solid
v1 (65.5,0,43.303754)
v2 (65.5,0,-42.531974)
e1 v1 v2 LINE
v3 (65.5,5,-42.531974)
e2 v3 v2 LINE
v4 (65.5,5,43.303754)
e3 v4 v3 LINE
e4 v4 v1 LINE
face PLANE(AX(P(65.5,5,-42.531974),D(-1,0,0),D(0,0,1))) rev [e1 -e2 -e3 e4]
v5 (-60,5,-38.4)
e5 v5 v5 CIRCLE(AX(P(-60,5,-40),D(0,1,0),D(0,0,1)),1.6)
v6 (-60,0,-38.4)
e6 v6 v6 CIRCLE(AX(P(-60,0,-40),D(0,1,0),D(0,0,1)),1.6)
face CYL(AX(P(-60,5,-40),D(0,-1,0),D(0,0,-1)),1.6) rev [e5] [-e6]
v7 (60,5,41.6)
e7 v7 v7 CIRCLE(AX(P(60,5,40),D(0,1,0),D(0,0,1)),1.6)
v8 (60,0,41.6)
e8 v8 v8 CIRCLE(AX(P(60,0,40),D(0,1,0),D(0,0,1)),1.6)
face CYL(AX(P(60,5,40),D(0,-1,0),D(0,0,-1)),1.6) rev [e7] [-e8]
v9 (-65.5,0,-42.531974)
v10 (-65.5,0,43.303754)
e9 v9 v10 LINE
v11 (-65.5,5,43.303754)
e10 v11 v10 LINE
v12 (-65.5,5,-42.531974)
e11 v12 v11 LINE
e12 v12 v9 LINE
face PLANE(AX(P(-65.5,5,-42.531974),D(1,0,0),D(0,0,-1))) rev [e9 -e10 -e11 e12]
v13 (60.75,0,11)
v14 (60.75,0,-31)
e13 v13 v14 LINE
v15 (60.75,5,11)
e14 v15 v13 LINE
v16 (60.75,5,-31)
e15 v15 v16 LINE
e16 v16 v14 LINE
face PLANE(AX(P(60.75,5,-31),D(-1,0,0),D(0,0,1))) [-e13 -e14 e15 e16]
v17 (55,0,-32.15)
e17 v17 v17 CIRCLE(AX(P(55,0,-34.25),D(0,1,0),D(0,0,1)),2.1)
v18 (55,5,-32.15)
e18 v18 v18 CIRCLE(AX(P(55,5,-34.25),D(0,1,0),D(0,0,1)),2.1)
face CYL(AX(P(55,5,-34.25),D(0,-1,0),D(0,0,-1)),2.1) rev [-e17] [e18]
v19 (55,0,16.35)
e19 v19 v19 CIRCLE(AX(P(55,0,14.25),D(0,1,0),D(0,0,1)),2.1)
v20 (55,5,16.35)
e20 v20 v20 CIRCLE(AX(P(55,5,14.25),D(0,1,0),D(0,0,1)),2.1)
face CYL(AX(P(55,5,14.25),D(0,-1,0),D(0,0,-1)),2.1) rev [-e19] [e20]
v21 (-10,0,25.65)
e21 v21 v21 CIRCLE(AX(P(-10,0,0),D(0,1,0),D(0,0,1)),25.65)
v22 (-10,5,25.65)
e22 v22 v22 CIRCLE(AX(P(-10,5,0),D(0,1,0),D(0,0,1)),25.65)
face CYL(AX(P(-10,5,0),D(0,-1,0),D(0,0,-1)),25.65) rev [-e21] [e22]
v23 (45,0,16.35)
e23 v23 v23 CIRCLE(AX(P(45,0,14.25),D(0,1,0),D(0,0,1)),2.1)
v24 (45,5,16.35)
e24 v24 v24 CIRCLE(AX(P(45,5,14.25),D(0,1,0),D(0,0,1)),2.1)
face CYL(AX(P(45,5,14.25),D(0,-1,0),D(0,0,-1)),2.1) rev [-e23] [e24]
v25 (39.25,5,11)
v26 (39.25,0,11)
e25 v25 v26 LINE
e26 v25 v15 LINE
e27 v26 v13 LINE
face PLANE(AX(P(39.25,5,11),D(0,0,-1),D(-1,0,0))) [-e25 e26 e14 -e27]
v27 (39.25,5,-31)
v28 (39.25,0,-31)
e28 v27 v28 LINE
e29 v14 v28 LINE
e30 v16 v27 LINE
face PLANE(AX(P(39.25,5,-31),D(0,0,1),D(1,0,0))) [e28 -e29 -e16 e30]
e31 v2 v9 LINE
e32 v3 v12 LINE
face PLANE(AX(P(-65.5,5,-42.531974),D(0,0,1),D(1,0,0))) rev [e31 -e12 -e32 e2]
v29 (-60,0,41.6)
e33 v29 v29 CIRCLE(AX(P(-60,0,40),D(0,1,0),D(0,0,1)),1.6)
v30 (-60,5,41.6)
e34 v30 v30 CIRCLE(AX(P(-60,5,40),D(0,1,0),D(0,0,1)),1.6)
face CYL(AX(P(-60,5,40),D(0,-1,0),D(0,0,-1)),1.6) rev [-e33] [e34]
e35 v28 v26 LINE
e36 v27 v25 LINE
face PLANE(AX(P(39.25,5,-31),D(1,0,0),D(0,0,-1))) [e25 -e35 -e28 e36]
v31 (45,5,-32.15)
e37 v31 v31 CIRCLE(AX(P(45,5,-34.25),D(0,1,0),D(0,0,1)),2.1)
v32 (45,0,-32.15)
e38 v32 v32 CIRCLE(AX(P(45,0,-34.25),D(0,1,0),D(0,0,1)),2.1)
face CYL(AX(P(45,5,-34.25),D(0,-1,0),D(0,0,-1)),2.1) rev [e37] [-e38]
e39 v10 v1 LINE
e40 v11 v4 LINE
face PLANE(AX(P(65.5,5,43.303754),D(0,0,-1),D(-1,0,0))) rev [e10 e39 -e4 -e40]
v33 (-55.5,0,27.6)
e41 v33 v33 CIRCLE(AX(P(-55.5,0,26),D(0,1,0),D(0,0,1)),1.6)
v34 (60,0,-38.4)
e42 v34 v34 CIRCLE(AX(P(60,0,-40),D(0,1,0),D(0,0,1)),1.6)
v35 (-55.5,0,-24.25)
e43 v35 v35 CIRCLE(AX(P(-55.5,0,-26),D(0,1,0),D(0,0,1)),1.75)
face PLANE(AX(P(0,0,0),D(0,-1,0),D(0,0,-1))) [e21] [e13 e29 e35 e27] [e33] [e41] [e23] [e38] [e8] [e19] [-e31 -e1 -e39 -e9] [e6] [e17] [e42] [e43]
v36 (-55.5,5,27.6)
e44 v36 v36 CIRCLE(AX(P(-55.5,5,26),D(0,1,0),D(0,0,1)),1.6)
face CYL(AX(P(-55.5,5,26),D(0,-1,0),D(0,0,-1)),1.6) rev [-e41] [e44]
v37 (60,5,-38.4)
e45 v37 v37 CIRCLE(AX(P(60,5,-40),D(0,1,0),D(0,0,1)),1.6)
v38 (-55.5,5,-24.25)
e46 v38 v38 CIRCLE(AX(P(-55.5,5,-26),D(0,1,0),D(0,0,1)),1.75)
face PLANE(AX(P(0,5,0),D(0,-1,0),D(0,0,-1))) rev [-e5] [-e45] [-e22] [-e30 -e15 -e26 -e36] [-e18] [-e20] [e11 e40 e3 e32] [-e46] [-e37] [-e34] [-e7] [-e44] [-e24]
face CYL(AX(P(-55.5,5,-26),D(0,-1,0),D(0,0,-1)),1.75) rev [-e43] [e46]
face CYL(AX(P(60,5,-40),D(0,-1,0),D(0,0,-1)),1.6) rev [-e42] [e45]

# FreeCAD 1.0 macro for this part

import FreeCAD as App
import Part
import Sketcher


def add_polygon(sketch, points):
    """Adds a closed chain of lines whose ends are joined by coincident constraints."""
    first, n = sketch.GeometryCount, len(points)
    for a, b in zip(points, points[1:] + points[:1]):
        sketch.addGeometry(Part.LineSegment(App.Vector(*a, 0), App.Vector(*b, 0)), False)
    for i in range(n):
        sketch.addConstraint(Sketcher.Constraint("Coincident", first + i, 2, first + (i + 1) % n, 1))

doc = App.newDocument("Part")
body = doc.addObject("PartDesign::Body", "Body")

# Sketch on XZ plane
sketch1 = doc.addObject("Sketcher::SketchObject", "Sketch")
body.addObject(sketch1)
sketch1.AttachmentSupport = (doc.XZ_Plane, [""])
sketch1.MapMode = "FlatFace"
add_polygon(sketch1, [(-65.5, -42.5), (-65.5, 43.3), (65.5, 43.3), (65.5, -42.5)])  # lines 0-3
sketch1.addGeometry(Part.Circle(App.Vector(-60, 40, 0), App.Vector(0, 0, 1), 1.6), False)  # 4
sketch1.addGeometry(Part.Circle(App.Vector(-55.5, 26, 0), App.Vector(0, 0, 1), 1.6), False)  # 5
sketch1.addGeometry(Part.Circle(App.Vector(60, 40, 0), App.Vector(0, 0, 1), 1.6), False)  # 6
sketch1.addGeometry(Part.Circle(App.Vector(45, 14.2, 0), App.Vector(0, 0, 1), 2.1), False)  # 7
sketch1.addGeometry(Part.Circle(App.Vector(55, 14.2, 0), App.Vector(0, 0, 1), 2.1), False)  # 8
sketch1.addGeometry(Part.Circle(App.Vector(-10, 0, 0), App.Vector(0, 0, 1), 25.6), False)  # 9
sketch1.addGeometry(Part.Circle(App.Vector(-55.5, -26, 0), App.Vector(0, 0, 1), 1.8), False)  # 10
sketch1.addGeometry(Part.Circle(App.Vector(-60, -40, 0), App.Vector(0, 0, 1), 1.6), False)  # 11
add_polygon(sketch1, [(60.8, 11), (39.2, 11), (39.2, -31), (60.8, -31)])  # lines 12-15
sketch1.addGeometry(Part.Circle(App.Vector(45, -34.2, 0), App.Vector(0, 0, 1), 2.1), False)  # 16
sketch1.addGeometry(Part.Circle(App.Vector(55, -34.2, 0), App.Vector(0, 0, 1), 2.1), False)  # 17
sketch1.addGeometry(Part.Circle(App.Vector(60, -40, 0), App.Vector(0, 0, 1), 1.6), False)  # 18
sketch1.addConstraint(Sketcher.Constraint("Vertical", 0))
sketch1.addConstraint(Sketcher.Constraint("Horizontal", 1))
sketch1.addConstraint(Sketcher.Constraint("Vertical", 2))
sketch1.addConstraint(Sketcher.Constraint("Horizontal", 3))
sketch1.addConstraint(Sketcher.Constraint("Horizontal", 12))
sketch1.addConstraint(Sketcher.Constraint("Vertical", 13))
sketch1.addConstraint(Sketcher.Constraint("Horizontal", 14))
sketch1.addConstraint(Sketcher.Constraint("Vertical", 15))
sketch1.addConstraint(Sketcher.Constraint("Equal", 4, 5))
sketch1.addConstraint(Sketcher.Constraint("Equal", 5, 6))
sketch1.addConstraint(Sketcher.Constraint("Equal", 7, 8))
sketch1.addConstraint(Sketcher.Constraint("Equal", 6, 11))
sketch1.addConstraint(Sketcher.Constraint("Equal", 8, 16))
sketch1.addConstraint(Sketcher.Constraint("Equal", 16, 17))
sketch1.addConstraint(Sketcher.Constraint("Equal", 11, 18))
sketch1.addConstraint(Sketcher.Constraint("Symmetric", 6, 3, 11, 3, -1, 1))
sketch1.addConstraint(Sketcher.Constraint("Symmetric", 4, 3, 18, 3, -1, 1))
sketch1.addConstraint(Sketcher.Constraint("Symmetric", 4, 3, 6, 3, -2))
sketch1.addConstraint(Sketcher.Constraint("Symmetric", 5, 3, 10, 3, -1))
sketch1.addConstraint(Sketcher.Constraint("PointOnObject", 9, 3, -1))
sketch1.addConstraint(Sketcher.Constraint("Horizontal", 7, 3, 8, 3))
sketch1.addConstraint(Sketcher.Constraint("Horizontal", 16, 3, 17, 3))
sketch1.addConstraint(Sketcher.Constraint("Vertical", 7, 3, 16, 3))
sketch1.addConstraint(Sketcher.Constraint("Vertical", 8, 3, 17, 3))
sketch1.addConstraint(Sketcher.Constraint("Diameter", 4, 3.2))
sketch1.addConstraint(Sketcher.Constraint("Diameter", 7, 4.2))
sketch1.addConstraint(Sketcher.Constraint("Diameter", 9, 51.3))
sketch1.addConstraint(Sketcher.Constraint("Diameter", 10, 3.5))
sketch1.addConstraint(Sketcher.Constraint("DistanceX", 1, 1, 1, 2, 131.0))
sketch1.addConstraint(Sketcher.Constraint("DistanceY", 13, 2, 13, 1, 42.0))
sketch1.addConstraint(Sketcher.Constraint("DistanceX", 12, 2, 12, 1, 21.5))
sketch1.addConstraint(Sketcher.Constraint("DistanceX", 4, 3, -1, 1, 60.0))
sketch1.addConstraint(Sketcher.Constraint("DistanceY", -1, 1, 4, 3, 40.0))
sketch1.addConstraint(Sketcher.Constraint("DistanceY", -1, 1, 5, 3, 26.0))
sketch1.addConstraint(Sketcher.Constraint("DistanceX", -1, 1, 7, 3, 45.0))
sketch1.addConstraint(Sketcher.Constraint("DistanceX", -1, 1, 8, 3, 55.0))
sketch1.addConstraint(Sketcher.Constraint("DistanceX", 9, 3, -1, 1, 10.0))
sketch1.addConstraint(Sketcher.Constraint("DistanceY", -1, 1, 12, 2, 11.0))
sketch1.addConstraint(Sketcher.Constraint("DistanceX", 0, 2, 5, 3, 10.0))
sketch1.addConstraint(Sketcher.Constraint("DistanceX", 5, 3, -1, 1, 55.5))
sketch1.addConstraint(Sketcher.Constraint("DistanceY", 16, 3, 7, 3, 48.5))
sketch1.addConstraint(Sketcher.Constraint("DistanceY", -1, 1, 7, 3, 14.25))
sketch1.addConstraint(Sketcher.Constraint("DistanceX", -1, 1, 12, 2, 39.25))
sketch1.addConstraint(Sketcher.Constraint("DistanceY", 0, 1, 0, 2, 85.835728))
sketch1.addConstraint(Sketcher.Constraint("DistanceY", -1, 1, 0, 2, 43.303754))
pad1 = doc.addObject("PartDesign::Pad", "Pad")
body.addObject(pad1)
pad1.Profile = sketch1
pad1.Length = 5
pad1.Reversed = True

doc.recompute()
